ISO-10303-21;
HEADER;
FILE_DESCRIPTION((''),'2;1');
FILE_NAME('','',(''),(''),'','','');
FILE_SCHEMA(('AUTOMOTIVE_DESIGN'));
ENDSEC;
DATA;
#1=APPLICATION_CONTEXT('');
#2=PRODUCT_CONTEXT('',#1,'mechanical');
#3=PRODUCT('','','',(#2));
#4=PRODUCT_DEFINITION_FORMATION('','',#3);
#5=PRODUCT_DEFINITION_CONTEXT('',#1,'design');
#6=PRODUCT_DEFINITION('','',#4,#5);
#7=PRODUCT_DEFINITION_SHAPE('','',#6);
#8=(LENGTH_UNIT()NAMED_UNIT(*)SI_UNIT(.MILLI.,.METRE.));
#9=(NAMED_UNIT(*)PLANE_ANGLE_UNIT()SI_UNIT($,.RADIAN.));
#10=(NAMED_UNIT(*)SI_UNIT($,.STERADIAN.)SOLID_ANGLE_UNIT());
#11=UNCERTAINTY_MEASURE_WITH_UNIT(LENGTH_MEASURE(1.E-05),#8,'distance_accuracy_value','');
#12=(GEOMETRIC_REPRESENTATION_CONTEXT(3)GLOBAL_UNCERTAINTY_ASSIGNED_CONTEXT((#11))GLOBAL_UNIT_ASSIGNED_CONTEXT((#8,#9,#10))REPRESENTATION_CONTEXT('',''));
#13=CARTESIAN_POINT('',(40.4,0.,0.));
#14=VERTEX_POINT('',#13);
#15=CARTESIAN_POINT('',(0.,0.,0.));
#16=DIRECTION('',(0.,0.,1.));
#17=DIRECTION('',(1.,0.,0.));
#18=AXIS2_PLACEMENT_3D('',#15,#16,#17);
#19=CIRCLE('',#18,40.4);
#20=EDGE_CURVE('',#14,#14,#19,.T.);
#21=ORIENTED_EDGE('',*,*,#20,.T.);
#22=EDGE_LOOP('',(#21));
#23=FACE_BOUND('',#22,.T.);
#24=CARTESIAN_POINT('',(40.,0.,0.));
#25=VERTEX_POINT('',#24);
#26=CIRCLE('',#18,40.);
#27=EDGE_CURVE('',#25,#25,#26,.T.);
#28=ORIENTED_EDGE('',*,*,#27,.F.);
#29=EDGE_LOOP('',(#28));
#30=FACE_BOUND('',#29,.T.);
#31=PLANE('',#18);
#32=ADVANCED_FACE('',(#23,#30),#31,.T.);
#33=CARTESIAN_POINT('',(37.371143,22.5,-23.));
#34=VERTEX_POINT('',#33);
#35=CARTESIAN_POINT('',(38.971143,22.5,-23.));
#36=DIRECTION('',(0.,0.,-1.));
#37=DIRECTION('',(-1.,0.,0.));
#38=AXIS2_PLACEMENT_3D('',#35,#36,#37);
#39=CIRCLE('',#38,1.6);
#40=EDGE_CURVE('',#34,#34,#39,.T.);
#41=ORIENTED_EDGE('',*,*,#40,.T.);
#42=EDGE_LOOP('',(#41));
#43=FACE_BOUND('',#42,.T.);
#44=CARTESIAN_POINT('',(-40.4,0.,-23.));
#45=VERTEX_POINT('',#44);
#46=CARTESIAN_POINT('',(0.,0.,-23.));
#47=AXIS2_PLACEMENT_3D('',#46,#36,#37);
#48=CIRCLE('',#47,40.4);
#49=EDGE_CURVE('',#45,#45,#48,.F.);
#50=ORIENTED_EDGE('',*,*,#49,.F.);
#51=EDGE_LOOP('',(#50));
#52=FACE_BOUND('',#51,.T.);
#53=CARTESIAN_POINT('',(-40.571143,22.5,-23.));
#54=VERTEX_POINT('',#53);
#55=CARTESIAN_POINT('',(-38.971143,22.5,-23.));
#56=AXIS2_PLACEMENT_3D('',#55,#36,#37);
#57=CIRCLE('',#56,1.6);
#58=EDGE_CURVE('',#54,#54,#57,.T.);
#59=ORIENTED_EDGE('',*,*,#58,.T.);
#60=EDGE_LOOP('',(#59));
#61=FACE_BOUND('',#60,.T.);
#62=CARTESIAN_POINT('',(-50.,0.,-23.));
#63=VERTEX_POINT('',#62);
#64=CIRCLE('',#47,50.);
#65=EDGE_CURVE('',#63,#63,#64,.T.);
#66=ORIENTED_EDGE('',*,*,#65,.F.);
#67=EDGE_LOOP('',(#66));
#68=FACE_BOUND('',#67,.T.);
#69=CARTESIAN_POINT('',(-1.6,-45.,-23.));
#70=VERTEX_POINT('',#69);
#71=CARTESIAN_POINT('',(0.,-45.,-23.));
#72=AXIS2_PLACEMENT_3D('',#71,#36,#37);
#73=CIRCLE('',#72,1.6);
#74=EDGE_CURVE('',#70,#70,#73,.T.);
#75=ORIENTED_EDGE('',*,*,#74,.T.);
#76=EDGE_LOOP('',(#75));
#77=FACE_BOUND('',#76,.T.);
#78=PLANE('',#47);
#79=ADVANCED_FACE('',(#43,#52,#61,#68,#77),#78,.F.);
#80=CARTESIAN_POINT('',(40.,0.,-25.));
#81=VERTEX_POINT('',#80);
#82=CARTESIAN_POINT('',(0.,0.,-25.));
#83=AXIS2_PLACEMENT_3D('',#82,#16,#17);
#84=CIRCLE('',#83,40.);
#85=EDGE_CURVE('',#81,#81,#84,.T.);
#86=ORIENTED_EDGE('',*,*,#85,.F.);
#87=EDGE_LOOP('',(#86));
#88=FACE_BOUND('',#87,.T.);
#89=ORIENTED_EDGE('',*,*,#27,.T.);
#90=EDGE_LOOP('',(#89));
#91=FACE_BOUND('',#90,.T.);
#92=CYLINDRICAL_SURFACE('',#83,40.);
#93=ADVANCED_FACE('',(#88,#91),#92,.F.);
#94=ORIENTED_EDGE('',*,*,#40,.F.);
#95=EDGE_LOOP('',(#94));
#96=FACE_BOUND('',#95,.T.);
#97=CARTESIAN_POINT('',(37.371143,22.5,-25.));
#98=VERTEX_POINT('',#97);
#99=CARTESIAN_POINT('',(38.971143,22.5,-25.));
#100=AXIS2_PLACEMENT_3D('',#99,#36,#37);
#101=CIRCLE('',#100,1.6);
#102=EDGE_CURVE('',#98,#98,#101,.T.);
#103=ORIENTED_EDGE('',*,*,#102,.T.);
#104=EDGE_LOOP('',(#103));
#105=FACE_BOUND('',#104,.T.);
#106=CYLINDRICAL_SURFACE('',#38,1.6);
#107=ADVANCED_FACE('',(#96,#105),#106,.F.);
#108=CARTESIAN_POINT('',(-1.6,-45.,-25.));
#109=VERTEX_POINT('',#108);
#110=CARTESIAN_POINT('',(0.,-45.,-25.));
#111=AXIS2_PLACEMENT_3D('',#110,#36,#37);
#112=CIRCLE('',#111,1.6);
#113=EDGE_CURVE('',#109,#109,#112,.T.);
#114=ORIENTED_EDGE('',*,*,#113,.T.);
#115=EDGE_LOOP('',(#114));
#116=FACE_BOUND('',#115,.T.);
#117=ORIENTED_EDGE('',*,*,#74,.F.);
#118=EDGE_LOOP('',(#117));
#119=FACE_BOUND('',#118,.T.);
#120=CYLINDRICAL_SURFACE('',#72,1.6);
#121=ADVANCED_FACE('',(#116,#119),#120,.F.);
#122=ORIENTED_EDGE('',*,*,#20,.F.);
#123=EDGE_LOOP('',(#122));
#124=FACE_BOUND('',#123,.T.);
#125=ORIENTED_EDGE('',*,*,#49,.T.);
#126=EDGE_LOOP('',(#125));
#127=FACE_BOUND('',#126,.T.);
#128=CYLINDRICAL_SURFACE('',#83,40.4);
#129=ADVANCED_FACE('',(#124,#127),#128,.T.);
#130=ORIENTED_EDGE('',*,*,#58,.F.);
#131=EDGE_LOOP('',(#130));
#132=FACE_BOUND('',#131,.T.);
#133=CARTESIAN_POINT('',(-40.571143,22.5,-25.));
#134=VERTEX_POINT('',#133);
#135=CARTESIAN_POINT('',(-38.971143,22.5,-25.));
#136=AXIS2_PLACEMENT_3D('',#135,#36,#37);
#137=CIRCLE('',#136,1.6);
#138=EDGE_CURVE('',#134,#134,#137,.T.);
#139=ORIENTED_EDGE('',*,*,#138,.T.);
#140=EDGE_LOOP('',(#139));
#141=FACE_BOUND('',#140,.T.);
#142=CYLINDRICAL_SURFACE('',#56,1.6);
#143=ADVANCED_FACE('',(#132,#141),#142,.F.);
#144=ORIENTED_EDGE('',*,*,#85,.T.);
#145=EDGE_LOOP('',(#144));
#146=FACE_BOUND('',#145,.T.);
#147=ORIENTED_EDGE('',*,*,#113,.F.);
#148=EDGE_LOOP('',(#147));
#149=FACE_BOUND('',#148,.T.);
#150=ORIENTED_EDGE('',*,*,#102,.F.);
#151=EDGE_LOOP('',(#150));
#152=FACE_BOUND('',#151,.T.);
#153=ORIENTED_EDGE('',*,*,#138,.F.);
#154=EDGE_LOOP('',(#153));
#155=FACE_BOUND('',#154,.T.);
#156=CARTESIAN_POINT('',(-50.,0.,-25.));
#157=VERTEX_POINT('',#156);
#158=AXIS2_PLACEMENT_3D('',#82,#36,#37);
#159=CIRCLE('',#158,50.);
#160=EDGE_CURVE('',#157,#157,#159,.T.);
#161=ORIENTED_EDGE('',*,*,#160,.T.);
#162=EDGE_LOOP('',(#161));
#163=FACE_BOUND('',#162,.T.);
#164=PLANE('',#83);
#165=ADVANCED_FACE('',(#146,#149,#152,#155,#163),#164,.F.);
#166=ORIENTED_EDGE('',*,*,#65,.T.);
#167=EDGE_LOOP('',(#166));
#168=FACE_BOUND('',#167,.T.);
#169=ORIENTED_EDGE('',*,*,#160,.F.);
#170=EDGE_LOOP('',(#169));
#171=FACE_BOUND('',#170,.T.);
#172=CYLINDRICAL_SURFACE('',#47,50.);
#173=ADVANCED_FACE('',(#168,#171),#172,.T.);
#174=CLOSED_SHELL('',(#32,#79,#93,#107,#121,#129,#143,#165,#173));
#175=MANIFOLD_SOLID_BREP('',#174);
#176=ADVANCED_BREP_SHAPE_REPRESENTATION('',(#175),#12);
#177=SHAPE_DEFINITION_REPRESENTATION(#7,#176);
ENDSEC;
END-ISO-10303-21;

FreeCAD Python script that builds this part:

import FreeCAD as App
import Part
import Sketcher

V = App.Vector
Q = App.Units.Quantity

doc = App.newDocument("Part")
body = doc.addObject("PartDesign::Body", "Body")

# Sketch on XY plane
sketch1 = body.newObject("Sketcher::SketchObject", "Sketch")
sketch1.AttachmentSupport = (doc.getObject("XY_Plane"), [""])
sketch1.MapMode = "FlatFace"
sketch1.addGeometry([
    Part.Circle(V(0, 0, 0), V(0, 0, 1), 40),
    Part.Circle(V(0, 0, 0), V(0, 0, 1), 40),
], False)
sketch1.addConstraint([
    Sketcher.Constraint("Coincident", 0, 3, -1, 1),
    Sketcher.Constraint("Coincident", 1, 3, -1, 1),
    Sketcher.Constraint("Diameter", 1, Q("80 mm")),
    Sketcher.Constraint("Diameter", 0, Q("80.8 mm")),
])
pad1 = body.newObject("PartDesign::Pad", "Pad")
pad1.Profile = sketch1
pad1.Length = 25
pad1.Reversed = True

# Sketch on XY plane
sketch2 = body.newObject("Sketcher::SketchObject", "Sketch001")
sketch2.AttachmentSupport = (doc.getObject("XY_Plane"), [""])
sketch2.MapMode = "FlatFace"
sketch2.AttachmentOffset = App.Placement(V(0, 0, -23), App.Rotation())
sketch2.addGeometry([
    Part.Circle(V(0, 0, 0), V(0, 0, 1), 50),  # 0
    Part.Circle(V(0, -45, 0), V(0, 0, 1), 1.6),  # 1
    Part.Circle(V(39, 22.5, 0), V(0, 0, 1), 1.6),  # 2
    Part.Circle(V(0, 0, 0), V(0, 0, 1), 40),  # 3
    Part.Circle(V(-39, 22.5, 0), V(0, 0, 1), 1.6),  # 4
], False)
sketch2.addConstraint([
    Sketcher.Constraint("Coincident", 0, 3, -1, 1),
    Sketcher.Constraint("Coincident", 3, 3, -1, 1),
    Sketcher.Constraint("Equal", 1, 2),
    Sketcher.Constraint("Equal", 2, 4),
    Sketcher.Constraint("Symmetric", 2, 3, 4, 3, -2),
    Sketcher.Constraint("PointOnObject", 1, 3, -2),
    Sketcher.Constraint("Diameter", 0, Q("100 mm")),
    Sketcher.Constraint("Diameter", 3, Q("80 mm")),
    Sketcher.Constraint("Diameter", 1, Q("3.2 mm")),
    Sketcher.Constraint("DistanceY", 1, 3, -1, 1, Q("45 mm")),
    Sketcher.Constraint("DistanceY", -1, 1, 2, 3, Q("22.5 mm")),
    Sketcher.Constraint("DistanceX", -1, 1, 2, 3, Q("38.971143 mm")),
])
pad2 = body.newObject("PartDesign::Pad", "Pad001")
pad2.Profile = sketch2
pad2.Length = 2
pad2.Reversed = True

doc.recompute()
